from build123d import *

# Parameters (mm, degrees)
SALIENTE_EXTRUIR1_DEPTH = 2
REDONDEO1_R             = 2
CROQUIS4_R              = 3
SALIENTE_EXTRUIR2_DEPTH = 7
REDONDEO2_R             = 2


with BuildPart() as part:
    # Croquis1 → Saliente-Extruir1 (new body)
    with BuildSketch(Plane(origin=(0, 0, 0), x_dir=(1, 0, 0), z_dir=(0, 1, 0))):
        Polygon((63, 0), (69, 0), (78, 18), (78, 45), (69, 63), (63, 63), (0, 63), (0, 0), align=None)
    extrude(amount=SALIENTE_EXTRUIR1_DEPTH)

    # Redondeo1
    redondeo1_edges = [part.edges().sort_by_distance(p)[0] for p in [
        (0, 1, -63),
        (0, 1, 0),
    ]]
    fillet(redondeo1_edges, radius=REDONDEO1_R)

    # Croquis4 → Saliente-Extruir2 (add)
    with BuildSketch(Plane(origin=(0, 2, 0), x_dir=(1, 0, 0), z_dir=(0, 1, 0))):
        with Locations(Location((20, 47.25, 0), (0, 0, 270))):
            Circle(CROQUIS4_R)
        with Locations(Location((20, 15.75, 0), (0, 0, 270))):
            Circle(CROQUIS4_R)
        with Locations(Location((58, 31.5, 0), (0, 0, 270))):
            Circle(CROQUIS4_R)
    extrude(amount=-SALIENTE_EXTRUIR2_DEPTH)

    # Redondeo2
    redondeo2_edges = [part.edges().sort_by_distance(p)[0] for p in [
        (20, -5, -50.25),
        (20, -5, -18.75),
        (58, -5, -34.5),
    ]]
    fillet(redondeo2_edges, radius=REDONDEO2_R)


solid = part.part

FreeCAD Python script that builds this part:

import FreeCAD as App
import Part
import Sketcher
Q = App.Units.Quantity


def edges_at(feature, points):
    """Names of the edges that pass closest to the given points."""
    edges = feature.Shape.Edges
    near = lambda p: min(range(len(edges)), key=lambda i: edges[i].distToShape(Part.Vertex(*p))[0])
    return sorted({f"Edge{near(p) + 1}" for p in points})


def add_polygon(sketch, points):
    """Adds a closed chain of lines whose ends are joined by coincident constraints."""
    first, n = sketch.GeometryCount, len(points)
    for a, b in zip(points, points[1:] + points[:1]):
        sketch.addGeometry(Part.LineSegment(App.Vector(*a, 0), App.Vector(*b, 0)), False)
    for i in range(n):
        sketch.addConstraint(Sketcher.Constraint("Coincident", first + i, 2, first + (i + 1) % n, 1))

doc = App.newDocument("Part")
body = doc.addObject("PartDesign::Body", "Body")

# Sketch on XZ plane
sketch1 = doc.addObject("Sketcher::SketchObject", "Sketch")
body.addObject(sketch1)
sketch1.AttachmentSupport = (doc.XZ_Plane, [""])
sketch1.MapMode = "FlatFace"
add_polygon(sketch1, [(69, 0), (78, -18), (78, -45), (69, -63), (0, -63), (0, 0)])  # lines 0-5
sketch1.addConstraint(Sketcher.Constraint("Vertical", 1))
sketch1.addConstraint(Sketcher.Constraint("Horizontal", 3))
sketch1.addConstraint(Sketcher.Constraint("Vertical", 4))
sketch1.addConstraint(Sketcher.Constraint("Horizontal", 5))
sketch1.addConstraint(Sketcher.Constraint("Coincident", 4, 2, -1, 1))
sketch1.addConstraint(Sketcher.Constraint("Vertical", 2, 2, 5, 2))
sketch1.addConstraint(Sketcher.Constraint("Equal", 0, 2))
sketch1.addConstraint(Sketcher.Constraint("DistanceX", 3, 2, 3, 1, Q("69 mm")))
sketch1.addConstraint(Sketcher.Constraint("DistanceY", 1, 2, 1, 1, Q("27 mm")))
sketch1.addConstraint(Sketcher.Constraint("DistanceY", 4, 1, 4, 2, Q("63 mm")))
sketch1.addConstraint(Sketcher.Constraint("DistanceX", -1, 1, 0, 2, Q("78 mm")))
pad1 = doc.addObject("PartDesign::Pad", "Pad")
body.addObject(pad1)
pad1.Profile = sketch1
pad1.Length = 2
pad1.Reversed = True
doc.recompute()

fillet = doc.addObject("PartDesign::Fillet", "Fillet")
body.addObject(fillet)
fillet.Base = (pad1, edges_at(pad1, [(0, 1, -63), (0, 1, 0)]))
fillet.Radius = 2

# Sketch on XZ plane
sketch2 = doc.addObject("Sketcher::SketchObject", "Sketch001")
body.addObject(sketch2)
sketch2.AttachmentSupport = (doc.XZ_Plane, [""])
sketch2.MapMode = "FlatFace"
sketch2.AttachmentOffset = App.Placement(App.Vector(0, 0, -2), App.Rotation())
sketch2.addGeometry(Part.Circle(App.Vector(20, -47.2, 0), App.Vector(0, 0, 1), 3), False)
sketch2.addGeometry(Part.Circle(App.Vector(20, -15.8, 0), App.Vector(0, 0, 1), 3), False)
sketch2.addGeometry(Part.Circle(App.Vector(58, -31.5, 0), App.Vector(0, 0, 1), 3), False)
sketch2.addConstraint(Sketcher.Constraint("Equal", 0, 1))
sketch2.addConstraint(Sketcher.Constraint("Equal", 1, 2))
sketch2.addConstraint(Sketcher.Constraint("Vertical", 0, 3, 1, 3))
sketch2.addConstraint(Sketcher.Constraint("Diameter", 0, Q("6 mm")))
sketch2.addConstraint(Sketcher.Constraint("DistanceX", -1, 1, 0, 3, Q("20 mm")))
sketch2.addConstraint(Sketcher.Constraint("DistanceX", -1, 1, 2, 3, Q("58 mm")))
sketch2.addConstraint(Sketcher.Constraint("DistanceY", 2, 3, -1, 1, Q("31.5 mm")))
sketch2.addConstraint(Sketcher.Constraint("DistanceY", 0, 3, 1, 3, Q("31.5 mm")))
sketch2.addConstraint(Sketcher.Constraint("DistanceY", 0, 3, -1, 1, Q("47.25 mm")))
pad2 = doc.addObject("PartDesign::Pad", "Pad001")
body.addObject(pad2)
pad2.Profile = sketch2
pad2.Length = 7
doc.recompute()

fillet2 = doc.addObject("PartDesign::Fillet", "Fillet001")
body.addObject(fillet2)
fillet2.Base = (pad2, edges_at(pad2, [(20, -5, -50.25), (20, -5, -18.75), (58, -5, -34.5)]))
fillet2.Radius = 2

doc.recompute()
